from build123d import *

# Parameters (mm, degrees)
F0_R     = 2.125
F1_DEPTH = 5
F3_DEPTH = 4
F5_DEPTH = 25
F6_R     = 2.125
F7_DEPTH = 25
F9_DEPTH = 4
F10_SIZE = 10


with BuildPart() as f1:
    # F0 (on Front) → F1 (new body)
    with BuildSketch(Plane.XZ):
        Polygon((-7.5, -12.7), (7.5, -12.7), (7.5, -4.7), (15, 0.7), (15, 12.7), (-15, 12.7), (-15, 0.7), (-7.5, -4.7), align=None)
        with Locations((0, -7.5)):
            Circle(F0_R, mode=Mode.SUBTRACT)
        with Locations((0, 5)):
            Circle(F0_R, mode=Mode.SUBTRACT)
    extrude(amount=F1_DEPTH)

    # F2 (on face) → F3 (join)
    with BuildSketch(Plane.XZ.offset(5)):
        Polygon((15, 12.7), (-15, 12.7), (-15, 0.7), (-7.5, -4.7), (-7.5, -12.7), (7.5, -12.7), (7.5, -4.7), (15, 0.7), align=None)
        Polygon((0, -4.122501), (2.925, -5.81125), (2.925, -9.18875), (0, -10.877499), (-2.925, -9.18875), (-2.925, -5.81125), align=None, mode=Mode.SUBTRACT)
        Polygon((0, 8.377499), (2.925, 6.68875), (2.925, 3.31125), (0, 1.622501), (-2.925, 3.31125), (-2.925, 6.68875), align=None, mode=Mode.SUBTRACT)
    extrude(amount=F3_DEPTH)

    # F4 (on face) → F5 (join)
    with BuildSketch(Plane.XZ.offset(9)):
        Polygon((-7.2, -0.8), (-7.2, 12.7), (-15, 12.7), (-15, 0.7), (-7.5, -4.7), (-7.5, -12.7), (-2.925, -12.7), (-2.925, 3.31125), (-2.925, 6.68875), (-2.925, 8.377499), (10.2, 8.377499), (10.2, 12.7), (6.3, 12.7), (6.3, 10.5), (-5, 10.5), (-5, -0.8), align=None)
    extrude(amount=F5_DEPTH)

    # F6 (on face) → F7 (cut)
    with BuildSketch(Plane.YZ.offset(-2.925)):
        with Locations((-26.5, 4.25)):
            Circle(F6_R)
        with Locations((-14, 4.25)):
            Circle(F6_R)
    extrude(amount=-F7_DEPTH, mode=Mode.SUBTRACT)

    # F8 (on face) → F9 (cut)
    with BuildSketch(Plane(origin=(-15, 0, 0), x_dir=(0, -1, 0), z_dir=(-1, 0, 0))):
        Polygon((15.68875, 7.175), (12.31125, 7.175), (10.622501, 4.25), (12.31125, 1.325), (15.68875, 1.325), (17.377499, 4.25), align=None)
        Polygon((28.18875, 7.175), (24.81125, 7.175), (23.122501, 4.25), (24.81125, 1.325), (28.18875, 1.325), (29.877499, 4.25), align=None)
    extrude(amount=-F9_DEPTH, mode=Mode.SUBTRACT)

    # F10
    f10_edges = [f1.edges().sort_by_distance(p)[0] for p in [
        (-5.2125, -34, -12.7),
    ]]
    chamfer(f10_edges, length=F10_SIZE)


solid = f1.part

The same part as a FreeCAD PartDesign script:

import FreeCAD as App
import Part
import Sketcher

V = App.Vector
Q = App.Units.Quantity


def edges_at(feature, points):
    """Names of the edges that pass closest to the given points."""
    edges = feature.Shape.Edges
    near = lambda p: min(range(len(edges)), key=lambda i: edges[i].distToShape(Part.Vertex(*p))[0])
    return sorted({f"Edge{near(p) + 1}" for p in points})

doc = App.newDocument("Part")
body = doc.addObject("PartDesign::Body", "Body")

sketch1 = body.newObject("Sketcher::SketchObject", "Sketch")
sketch1.AttachmentSupport = (doc.getObject("XZ_Plane"), [""])
sketch1.MapMode = "FlatFace"
sketch1.addGeometry([
    Part.LineSegment(V(-7.5, -12.7, 0), V(7.5, -12.7, 0)),
    Part.LineSegment(V(7.5, -12.7, 0), V(7.5, -4.7, 0)),
    Part.LineSegment(V(7.5, -4.7, 0), V(15, 0.7, 0)),
    Part.LineSegment(V(15, 0.7, 0), V(15, 12.7, 0)),
    Part.LineSegment(V(15, 12.7, 0), V(-15, 12.7, 0)),
    Part.LineSegment(V(-15, 12.7, 0), V(-15, 0.7, 0)),
    Part.LineSegment(V(-15, 0.7, 0), V(-7.5, -4.7, 0)),
    Part.LineSegment(V(-7.5, -4.7, 0), V(-7.5, -12.7, 0)),
    Part.Circle(V(0, -7.5, 0), V(0, 0, 1), 2.1),
    Part.Circle(V(0, 5, 0), V(0, 0, 1), 2.1),
], False)
sketch1.addConstraint([
    Sketcher.Constraint("Coincident", 0, 2, 1, 1),
    Sketcher.Constraint("Coincident", 1, 2, 2, 1),
    Sketcher.Constraint("Coincident", 2, 2, 3, 1),
    Sketcher.Constraint("Coincident", 3, 2, 4, 1),
    Sketcher.Constraint("Coincident", 4, 2, 5, 1),
    Sketcher.Constraint("Coincident", 5, 2, 6, 1),
    Sketcher.Constraint("Coincident", 6, 2, 7, 1),
    Sketcher.Constraint("Coincident", 7, 2, 0, 1),
    Sketcher.Constraint("Horizontal", 0),
    Sketcher.Constraint("Vertical", 1),
    Sketcher.Constraint("Vertical", 3),
    Sketcher.Constraint("Horizontal", 4),
    Sketcher.Constraint("Vertical", 5),
    Sketcher.Constraint("Vertical", 7),
    Sketcher.Constraint("Equal", 8, 9),
    Sketcher.Constraint("Symmetric", 2, 2, 5, 2, -2),
    Sketcher.Constraint("Symmetric", 1, 2, 6, 2, -2),
    Sketcher.Constraint("PointOnObject", 8, 3, -2),
    Sketcher.Constraint("PointOnObject", 9, 3, -2),
    Sketcher.Constraint("Diameter", 8, Q("4.25 mm")),
    Sketcher.Constraint("DistanceX", 0, 1, 0, 2, Q("15 mm")),
    Sketcher.Constraint("DistanceX", 4, 2, 4, 1, Q("30 mm")),
    Sketcher.Constraint("DistanceY", 1, 1, 1, 2, Q("8 mm")),
    Sketcher.Constraint("DistanceY", 3, 1, 3, 2, Q("12 mm")),
    Sketcher.Constraint("DistanceY", -1, 1, 9, 3, Q("5 mm")),
    Sketcher.Constraint("DistanceY", 8, 3, -1, 1, Q("7.5 mm")),
    Sketcher.Constraint("DistanceY", 0, 2, -1, 1, Q("12.7 mm")),
    Sketcher.Constraint("DistanceY", -1, 1, 2, 2, Q("0.7 mm")),
])
pad1 = body.newObject("PartDesign::Pad", "Pad")
pad1.Profile = sketch1
pad1.Length = 5

sketch2 = body.newObject("Sketcher::SketchObject", "Sketch001")
sketch2.AttachmentSupport = (doc.getObject("XZ_Plane"), [""])
sketch2.MapMode = "FlatFace"
sketch2.AttachmentOffset = App.Placement(V(0, 0, 5), App.Rotation())
sketch2.addGeometry([
    Part.LineSegment(V(15, 12.7, 0), V(-15, 12.7, 0)),
    Part.LineSegment(V(-15, 12.7, 0), V(-15, 0.7, 0)),
    Part.LineSegment(V(-15, 0.7, 0), V(-7.5, -4.7, 0)),
    Part.LineSegment(V(-7.5, -4.7, 0), V(-7.5, -12.7, 0)),
    Part.LineSegment(V(-7.5, -12.7, 0), V(7.5, -12.7, 0)),
    Part.LineSegment(V(7.5, -12.7, 0), V(7.5, -4.7, 0)),
    Part.LineSegment(V(7.5, -4.7, 0), V(15, 0.7, 0)),
    Part.LineSegment(V(15, 0.7, 0), V(15, 12.7, 0)),
    Part.LineSegment(V(-2.9, -5.8, 0), V(0, -4.1, 0)),
    Part.LineSegment(V(0, -4.1, 0), V(2.9, -5.8, 0)),
    Part.LineSegment(V(2.9, -5.8, 0), V(2.9, -9.2, 0)),
    Part.LineSegment(V(2.9, -9.2, 0), V(0, -10.9, 0)),
    Part.LineSegment(V(0, -10.9, 0), V(-2.9, -9.2, 0)),
    Part.LineSegment(V(-2.9, -9.2, 0), V(-2.9, -5.8, 0)),
    Part.LineSegment(V(-2.9, 6.7, 0), V(0, 8.4, 0)),
    Part.LineSegment(V(0, 8.4, 0), V(2.9, 6.7, 0)),
    Part.LineSegment(V(2.9, 6.7, 0), V(2.9, 3.3, 0)),
    Part.LineSegment(V(2.9, 3.3, 0), V(0, 1.6, 0)),
    Part.LineSegment(V(0, 1.6, 0), V(-2.9, 3.3, 0)),
    Part.LineSegment(V(-2.9, 3.3, 0), V(-2.9, 6.7, 0)),
], False)
sketch2.addConstraint([
    Sketcher.Constraint("Coincident", 0, 2, 1, 1),
    Sketcher.Constraint("Coincident", 1, 2, 2, 1),
    Sketcher.Constraint("Coincident", 2, 2, 3, 1),
    Sketcher.Constraint("Coincident", 3, 2, 4, 1),
    Sketcher.Constraint("Coincident", 4, 2, 5, 1),
    Sketcher.Constraint("Coincident", 5, 2, 6, 1),
    Sketcher.Constraint("Coincident", 6, 2, 7, 1),
    Sketcher.Constraint("Coincident", 7, 2, 0, 1),
    Sketcher.Constraint("Coincident", 8, 2, 9, 1),
    Sketcher.Constraint("Coincident", 9, 2, 10, 1),
    Sketcher.Constraint("Coincident", 10, 2, 11, 1),
    Sketcher.Constraint("Coincident", 11, 2, 12, 1),
    Sketcher.Constraint("Coincident", 12, 2, 13, 1),
    Sketcher.Constraint("Coincident", 13, 2, 8, 1),
    Sketcher.Constraint("Coincident", 14, 2, 15, 1),
    Sketcher.Constraint("Coincident", 15, 2, 16, 1),
    Sketcher.Constraint("Coincident", 16, 2, 17, 1),
    Sketcher.Constraint("Coincident", 17, 2, 18, 1),
    Sketcher.Constraint("Coincident", 18, 2, 19, 1),
    Sketcher.Constraint("Coincident", 19, 2, 14, 1),
    Sketcher.Constraint("Horizontal", 0),
    Sketcher.Constraint("Vertical", 1),
    Sketcher.Constraint("Vertical", 3),
    Sketcher.Constraint("Horizontal", 4),
    Sketcher.Constraint("Vertical", 5),
    Sketcher.Constraint("Vertical", 7),
    Sketcher.Constraint("Vertical", 10),
    Sketcher.Constraint("Vertical", 13),
    Sketcher.Constraint("Vertical", 16),
    Sketcher.Constraint("Vertical", 19),
    Sketcher.Constraint("Symmetric", 2, 2, 5, 2, -2),
    Sketcher.Constraint("Symmetric", 1, 2, 6, 2, -2),
    Sketcher.Constraint("Symmetric", 10, 2, 12, 2, -2),
    Sketcher.Constraint("Symmetric", 16, 2, 18, 2, -2),
    Sketcher.Constraint("PointOnObject", 8, 2, -2),
    Sketcher.Constraint("PointOnObject", 11, 2, -2),
    Sketcher.Constraint("PointOnObject", 14, 2, -2),
    Sketcher.Constraint("PointOnObject", 17, 2, -2),
    Sketcher.Constraint("Parallel", 8, 11),
    Sketcher.Constraint("Parallel", 9, 12),
    Sketcher.Constraint("Parallel", 11, 14),
    Sketcher.Constraint("Parallel", 12, 15),
    Sketcher.Constraint("Parallel", 14, 17),
    Sketcher.Constraint("Vertical", 10, 2, 15, 2),
    Sketcher.Constraint("Equal", 13, 16),
    Sketcher.Constraint("DistanceX", 0, 2, 0, 1, Q("30 mm")),
    Sketcher.Constraint("DistanceX", 4, 1, 4, 2, Q("15 mm")),
    Sketcher.Constraint("DistanceY", 1, 2, 1, 1, Q("12 mm")),
    Sketcher.Constraint("DistanceY", 3, 2, 3, 1, Q("8 mm")),
    Sketcher.Constraint("Angle", 8, Q("29.999992 deg")),
    Sketcher.Constraint("DistanceY", -1, 1, 0, 2, Q("12.7 mm")),
    Sketcher.Constraint("DistanceY", 2, 2, -1, 1, Q("4.7 mm")),
    Sketcher.Constraint("DistanceY", 8, 2, 14, 2, Q("12.5 mm")),
    Sketcher.Constraint("DistanceX", 12, 2, 10, 2, Q("5.85 mm")),
    Sketcher.Constraint("DistanceY", 10, 2, 10, 1, Q("3.3775 mm")),
    Sketcher.Constraint("DistanceY", 8, 2, -1, 1, Q("4.122501 mm")),
])
pad2 = body.newObject("PartDesign::Pad", "Pad001")
pad2.Profile = sketch2
pad2.Length = 4

sketch3 = body.newObject("Sketcher::SketchObject", "Sketch002")
sketch3.AttachmentSupport = (doc.getObject("XZ_Plane"), [""])
sketch3.MapMode = "FlatFace"
sketch3.AttachmentOffset = App.Placement(V(0, 0, 9), App.Rotation())
sketch3.addGeometry([
    Part.LineSegment(V(-7.2, -0.8, 0), V(-7.2, 12.7, 0)),
    Part.LineSegment(V(-7.2, 12.7, 0), V(-15, 12.7, 0)),
    Part.LineSegment(V(-15, 12.7, 0), V(-15, 0.7, 0)),
    Part.LineSegment(V(-15, 0.7, 0), V(-7.5, -4.7, 0)),
    Part.LineSegment(V(-7.5, -4.7, 0), V(-7.5, -12.7, 0)),
    Part.LineSegment(V(-7.5, -12.7, 0), V(-2.9, -12.7, 0)),
    Part.LineSegment(V(-2.9, -12.7, 0), V(-2.9, 8.4, 0)),
    Part.LineSegment(V(-2.9, 8.4, 0), V(10.2, 8.4, 0)),
    Part.LineSegment(V(10.2, 8.4, 0), V(10.2, 12.7, 0)),
    Part.LineSegment(V(10.2, 12.7, 0), V(6.3, 12.7, 0)),
    Part.LineSegment(V(6.3, 12.7, 0), V(6.3, 10.5, 0)),
    Part.LineSegment(V(6.3, 10.5, 0), V(-5, 10.5, 0)),
    Part.LineSegment(V(-5, 10.5, 0), V(-5, -0.8, 0)),
    Part.LineSegment(V(-5, -0.8, 0), V(-7.2, -0.8, 0)),
], False)
sketch3.addConstraint([
    Sketcher.Constraint("Coincident", 0, 2, 1, 1),
    Sketcher.Constraint("Coincident", 1, 2, 2, 1),
    Sketcher.Constraint("Coincident", 2, 2, 3, 1),
    Sketcher.Constraint("Coincident", 3, 2, 4, 1),
    Sketcher.Constraint("Coincident", 4, 2, 5, 1),
    Sketcher.Constraint("Coincident", 5, 2, 6, 1),
    Sketcher.Constraint("Coincident", 6, 2, 7, 1),
    Sketcher.Constraint("Coincident", 7, 2, 8, 1),
    Sketcher.Constraint("Coincident", 8, 2, 9, 1),
    Sketcher.Constraint("Coincident", 9, 2, 10, 1),
    Sketcher.Constraint("Coincident", 10, 2, 11, 1),
    Sketcher.Constraint("Coincident", 11, 2, 12, 1),
    Sketcher.Constraint("Coincident", 12, 2, 13, 1),
    Sketcher.Constraint("Coincident", 13, 2, 0, 1),
    Sketcher.Constraint("Vertical", 0),
    Sketcher.Constraint("Horizontal", 1),
    Sketcher.Constraint("Vertical", 2),
    Sketcher.Constraint("Vertical", 4),
    Sketcher.Constraint("Horizontal", 5),
    Sketcher.Constraint("Vertical", 6),
    Sketcher.Constraint("Horizontal", 7),
    Sketcher.Constraint("Vertical", 8),
    Sketcher.Constraint("Horizontal", 9),
    Sketcher.Constraint("Vertical", 10),
    Sketcher.Constraint("Horizontal", 11),
    Sketcher.Constraint("Vertical", 12),
    Sketcher.Constraint("Horizontal", 13),
    Sketcher.Constraint("Horizontal", 1, 2, 8, 2),
    Sketcher.Constraint("Equal", 13, 10),
    Sketcher.Constraint("Equal", 11, 12),
    Sketcher.Constraint("DistanceY", 2, 2, 2, 1, Q("12 mm")),
    Sketcher.Constraint("DistanceY", 4, 2, 4, 1, Q("8 mm")),
    Sketcher.Constraint("DistanceX", 1, 2, 1, 1, Q("7.8 mm")),
    Sketcher.Constraint("DistanceX", 9, 2, 9, 1, Q("3.9 mm")),
    Sketcher.Constraint("DistanceX", 11, 2, 11, 1, Q("11.3 mm")),
    Sketcher.Constraint("DistanceX", 13, 2, 13, 1, Q("2.2 mm")),
    Sketcher.Constraint("DistanceX", 1, 2, -1, 1, Q("15 mm")),
    Sketcher.Constraint("DistanceY", -1, 1, 0, 2, Q("12.7 mm")),
    Sketcher.Constraint("DistanceX", 3, 2, -1, 1, Q("7.5 mm")),
    Sketcher.Constraint("DistanceY", 3, 2, -1, 1, Q("4.7 mm")),
    Sketcher.Constraint("DistanceX", 5, 1, 5, 2, Q("4.575 mm")),
    Sketcher.Constraint("DistanceY", 6, 1, 6, 2, Q("21.077499 mm")),
])
pad3 = body.newObject("PartDesign::Pad", "Pad002")
pad3.Profile = sketch3
pad3.Length = 25

sketch4 = body.newObject("Sketcher::SketchObject", "Sketch003")
sketch4.AttachmentSupport = (doc.getObject("YZ_Plane"), [""])
sketch4.MapMode = "FlatFace"
sketch4.AttachmentOffset = App.Placement(V(0, 0, -2.925), App.Rotation())
sketch4.addGeometry([
    Part.Circle(V(-26.5, 4.2, 0), V(0, 0, 1), 2.1),
    Part.Circle(V(-14, 4.2, 0), V(0, 0, 1), 2.1),
], False)
sketch4.addConstraint([
    Sketcher.Constraint("Equal", 0, 1),
    Sketcher.Constraint("Horizontal", 0, 3, 1, 3),
    Sketcher.Constraint("Diameter", 0, Q("4.25 mm")),
    Sketcher.Constraint("DistanceX", 1, 3, -1, 1, Q("14 mm")),
    Sketcher.Constraint("DistanceX", 0, 3, -1, 1, Q("26.5 mm")),
    Sketcher.Constraint("DistanceY", -1, 1, 0, 3, Q("4.25 mm")),
])
pocket1 = body.newObject("PartDesign::Pocket", "Pocket")
pocket1.Profile = sketch4
pocket1.Length = 25

sketch5 = body.newObject("Sketcher::SketchObject", "Sketch004")
sketch5.AttachmentSupport = (doc.getObject("YZ_Plane"), [""])
sketch5.MapMode = "FlatFace"
sketch5.AttachmentOffset = App.Placement(V(0, 0, -15), App.Rotation())
sketch5.addGeometry([
    Part.LineSegment(V(-15.7, 7.2, 0), V(-12.3, 7.2, 0)),
    Part.LineSegment(V(-12.3, 7.2, 0), V(-10.6, 4.2, 0)),
    Part.LineSegment(V(-10.6, 4.2, 0), V(-12.3, 1.3, 0)),
    Part.LineSegment(V(-12.3, 1.3, 0), V(-15.7, 1.3, 0)),
    Part.LineSegment(V(-15.7, 1.3, 0), V(-17.4, 4.2, 0)),
    Part.LineSegment(V(-17.4, 4.2, 0), V(-15.7, 7.2, 0)),
    Part.LineSegment(V(-28.2, 7.2, 0), V(-24.8, 7.2, 0)),
    Part.LineSegment(V(-24.8, 7.2, 0), V(-23.1, 4.2, 0)),
    Part.LineSegment(V(-23.1, 4.2, 0), V(-24.8, 1.3, 0)),
    Part.LineSegment(V(-24.8, 1.3, 0), V(-28.2, 1.3, 0)),
    Part.LineSegment(V(-28.2, 1.3, 0), V(-29.9, 4.2, 0)),
    Part.LineSegment(V(-29.9, 4.2, 0), V(-28.2, 7.2, 0)),
], False)
sketch5.addConstraint([
    Sketcher.Constraint("Coincident", 0, 2, 1, 1),
    Sketcher.Constraint("Coincident", 1, 2, 2, 1),
    Sketcher.Constraint("Coincident", 2, 2, 3, 1),
    Sketcher.Constraint("Coincident", 3, 2, 4, 1),
    Sketcher.Constraint("Coincident", 4, 2, 5, 1),
    Sketcher.Constraint("Coincident", 5, 2, 0, 1),
    Sketcher.Constraint("Coincident", 6, 2, 7, 1),
    Sketcher.Constraint("Coincident", 7, 2, 8, 1),
    Sketcher.Constraint("Coincident", 8, 2, 9, 1),
    Sketcher.Constraint("Coincident", 9, 2, 10, 1),
    Sketcher.Constraint("Coincident", 10, 2, 11, 1),
    Sketcher.Constraint("Coincident", 11, 2, 6, 1),
    Sketcher.Constraint("Horizontal", 0),
    Sketcher.Constraint("Horizontal", 3),
    Sketcher.Constraint("Horizontal", 6),
    Sketcher.Constraint("Horizontal", 9),
    Sketcher.Constraint("Parallel", 1, 4),
    Sketcher.Constraint("Parallel", 2, 5),
    Sketcher.Constraint("Parallel", 4, 7),
    Sketcher.Constraint("Parallel", 5, 8),
    Sketcher.Constraint("Parallel", 7, 10),
    Sketcher.Constraint("Parallel", 8, 11),
    Sketcher.Constraint("Horizontal", 1, 2, 4, 2),
    Sketcher.Constraint("Horizontal", 5, 2, 6, 2),
    Sketcher.Constraint("Horizontal", 4, 2, 7, 2),
    Sketcher.Constraint("Horizontal", 3, 2, 8, 2),
    Sketcher.Constraint("Horizontal", 7, 2, 10, 2),
    Sketcher.Constraint("Vertical", 0, 2, 2, 2),
    Sketcher.Constraint("Vertical", 3, 2, 5, 2),
    Sketcher.Constraint("Equal", 3, 6),
    Sketcher.Constraint("Angle", 1, Q("-60.000008 deg")),
    Sketcher.Constraint("DistanceX", 6, 2, 0, 2, Q("12.5 mm")),
    Sketcher.Constraint("DistanceY", -1, 1, 1, 2, Q("4.25 mm")),
    Sketcher.Constraint("DistanceY", 2, 2, 0, 2, Q("5.85 mm")),
    Sketcher.Constraint("DistanceX", 0, 1, 0, 2, Q("3.3775 mm")),
    Sketcher.Constraint("DistanceX", 1, 2, -1, 1, Q("10.622501 mm")),
])
pocket2 = body.newObject("PartDesign::Pocket", "Pocket001")
pocket2.Profile = sketch5
pocket2.Length = 4
pocket2.Reversed = True
doc.recompute()

chamfer = body.newObject("PartDesign::Chamfer", "Chamfer")
chamfer.Base = (pocket2, edges_at(pocket2, [(-5.213, -34, -12.7)]))
chamfer.Size = 10

doc.recompute()
